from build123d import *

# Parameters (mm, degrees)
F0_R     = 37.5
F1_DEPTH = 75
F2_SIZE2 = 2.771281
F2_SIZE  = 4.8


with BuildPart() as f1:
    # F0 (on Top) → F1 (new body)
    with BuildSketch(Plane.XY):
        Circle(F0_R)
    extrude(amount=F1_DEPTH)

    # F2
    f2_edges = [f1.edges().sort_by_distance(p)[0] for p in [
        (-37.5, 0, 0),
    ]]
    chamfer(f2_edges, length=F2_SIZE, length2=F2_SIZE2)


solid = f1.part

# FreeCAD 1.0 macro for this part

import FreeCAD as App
import Part
import Sketcher
from FreeCAD import Vector


def edges_at(feature, points):
    """Names of the edges that pass closest to the given points."""
    edges = feature.Shape.Edges
    near = lambda p: min(range(len(edges)), key=lambda i: edges[i].distToShape(Part.Vertex(*p))[0])
    return sorted({f"Edge{near(p) + 1}" for p in points})

doc = App.newDocument("Part")
body = doc.addObject("PartDesign::Body", "Body")

# Sketch on XY plane
sketch1 = body.newObject("Sketcher::SketchObject", "Sketch")
sketch1.AttachmentSupport = (doc.getObject("XY_Plane"), [""])
sketch1.MapMode = "FlatFace"
sketch1.addGeometry(Part.Circle(Vector(0, 0, 0), Vector(0, 0, 1), 38), False)
sketch1.addConstraint([
    Sketcher.Constraint("Coincident", 0, 3, -1, 1),
    Sketcher.Constraint("Diameter", 0, 75.0),
])
pad1 = body.newObject("PartDesign::Pad", "Pad")
pad1.Profile = sketch1
pad1.Length = 75
doc.recompute()

chamfer = body.newObject("PartDesign::Chamfer", "Chamfer")
chamfer.Base = (pad1, edges_at(pad1, [(-37.5, 0, 0)]))
chamfer.ChamferType = "Two distances"
chamfer.Size = 4.8
chamfer.Size2 = 2.771281

doc.recompute()
